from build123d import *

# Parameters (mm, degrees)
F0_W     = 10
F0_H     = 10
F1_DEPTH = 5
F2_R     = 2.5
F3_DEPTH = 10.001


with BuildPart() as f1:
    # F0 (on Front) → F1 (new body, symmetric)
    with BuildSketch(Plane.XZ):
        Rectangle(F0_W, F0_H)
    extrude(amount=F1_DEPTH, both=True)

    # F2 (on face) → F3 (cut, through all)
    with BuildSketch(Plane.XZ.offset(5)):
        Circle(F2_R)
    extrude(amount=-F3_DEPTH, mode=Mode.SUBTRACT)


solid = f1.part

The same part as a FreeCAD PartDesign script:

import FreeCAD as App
import Part
import Sketcher

doc = App.newDocument("Part")
body = doc.addObject("PartDesign::Body", "Body")

sketch1 = body.newObject("Sketcher::SketchObject", "Sketch")
sketch1.AttachmentSupport = (doc.getObject("XZ_Plane"), [""])
sketch1.MapMode = "FlatFace"
sketch1.addGeometry(Part.LineSegment(App.Vector(-5, 5, 0), App.Vector(-5, -5, 0)), False)
sketch1.addGeometry(Part.LineSegment(App.Vector(-5, -5, 0), App.Vector(5, -5, 0)), False)
sketch1.addGeometry(Part.LineSegment(App.Vector(5, -5, 0), App.Vector(5, 5, 0)), False)
sketch1.addGeometry(Part.LineSegment(App.Vector(5, 5, 0), App.Vector(-5, 5, 0)), False)
sketch1.addConstraint(Sketcher.Constraint("Coincident", 0, 2, 1, 1))
sketch1.addConstraint(Sketcher.Constraint("Coincident", 1, 2, 2, 1))
sketch1.addConstraint(Sketcher.Constraint("Coincident", 2, 2, 3, 1))
sketch1.addConstraint(Sketcher.Constraint("Coincident", 3, 2, 0, 1))
sketch1.addConstraint(Sketcher.Constraint("Vertical", 0))
sketch1.addConstraint(Sketcher.Constraint("Horizontal", 1))
sketch1.addConstraint(Sketcher.Constraint("Vertical", 2))
sketch1.addConstraint(Sketcher.Constraint("Horizontal", 3))
sketch1.addConstraint(Sketcher.Constraint("Symmetric", 0, 2, 2, 2, -1, 1))
sketch1.addConstraint(Sketcher.Constraint("Equal", 3, 0))
sketch1.addConstraint(Sketcher.Constraint("DistanceX", 1, 1, 1, 2, 10.0))
pad1 = body.newObject("PartDesign::Pad", "Pad")
pad1.Profile = sketch1
pad1.Length = 10
pad1.Midplane = True

sketch2 = body.newObject("Sketcher::SketchObject", "Sketch001")
sketch2.AttachmentSupport = (doc.getObject("XZ_Plane"), [""])
sketch2.MapMode = "FlatFace"
sketch2.AttachmentOffset = App.Placement(App.Vector(0, 0, 5), App.Rotation())
sketch2.addGeometry(Part.Circle(App.Vector(0, 0, 0), App.Vector(0, 0, 1), 2.5), False)
sketch2.addConstraint(Sketcher.Constraint("Coincident", 0, 3, -1, 1))
sketch2.addConstraint(Sketcher.Constraint("Diameter", 0, 5.0))
pocket1 = body.newObject("PartDesign::Pocket", "Pocket")
pocket1.Profile = sketch2
pocket1.Type = "ThroughAll"

doc.recompute()
